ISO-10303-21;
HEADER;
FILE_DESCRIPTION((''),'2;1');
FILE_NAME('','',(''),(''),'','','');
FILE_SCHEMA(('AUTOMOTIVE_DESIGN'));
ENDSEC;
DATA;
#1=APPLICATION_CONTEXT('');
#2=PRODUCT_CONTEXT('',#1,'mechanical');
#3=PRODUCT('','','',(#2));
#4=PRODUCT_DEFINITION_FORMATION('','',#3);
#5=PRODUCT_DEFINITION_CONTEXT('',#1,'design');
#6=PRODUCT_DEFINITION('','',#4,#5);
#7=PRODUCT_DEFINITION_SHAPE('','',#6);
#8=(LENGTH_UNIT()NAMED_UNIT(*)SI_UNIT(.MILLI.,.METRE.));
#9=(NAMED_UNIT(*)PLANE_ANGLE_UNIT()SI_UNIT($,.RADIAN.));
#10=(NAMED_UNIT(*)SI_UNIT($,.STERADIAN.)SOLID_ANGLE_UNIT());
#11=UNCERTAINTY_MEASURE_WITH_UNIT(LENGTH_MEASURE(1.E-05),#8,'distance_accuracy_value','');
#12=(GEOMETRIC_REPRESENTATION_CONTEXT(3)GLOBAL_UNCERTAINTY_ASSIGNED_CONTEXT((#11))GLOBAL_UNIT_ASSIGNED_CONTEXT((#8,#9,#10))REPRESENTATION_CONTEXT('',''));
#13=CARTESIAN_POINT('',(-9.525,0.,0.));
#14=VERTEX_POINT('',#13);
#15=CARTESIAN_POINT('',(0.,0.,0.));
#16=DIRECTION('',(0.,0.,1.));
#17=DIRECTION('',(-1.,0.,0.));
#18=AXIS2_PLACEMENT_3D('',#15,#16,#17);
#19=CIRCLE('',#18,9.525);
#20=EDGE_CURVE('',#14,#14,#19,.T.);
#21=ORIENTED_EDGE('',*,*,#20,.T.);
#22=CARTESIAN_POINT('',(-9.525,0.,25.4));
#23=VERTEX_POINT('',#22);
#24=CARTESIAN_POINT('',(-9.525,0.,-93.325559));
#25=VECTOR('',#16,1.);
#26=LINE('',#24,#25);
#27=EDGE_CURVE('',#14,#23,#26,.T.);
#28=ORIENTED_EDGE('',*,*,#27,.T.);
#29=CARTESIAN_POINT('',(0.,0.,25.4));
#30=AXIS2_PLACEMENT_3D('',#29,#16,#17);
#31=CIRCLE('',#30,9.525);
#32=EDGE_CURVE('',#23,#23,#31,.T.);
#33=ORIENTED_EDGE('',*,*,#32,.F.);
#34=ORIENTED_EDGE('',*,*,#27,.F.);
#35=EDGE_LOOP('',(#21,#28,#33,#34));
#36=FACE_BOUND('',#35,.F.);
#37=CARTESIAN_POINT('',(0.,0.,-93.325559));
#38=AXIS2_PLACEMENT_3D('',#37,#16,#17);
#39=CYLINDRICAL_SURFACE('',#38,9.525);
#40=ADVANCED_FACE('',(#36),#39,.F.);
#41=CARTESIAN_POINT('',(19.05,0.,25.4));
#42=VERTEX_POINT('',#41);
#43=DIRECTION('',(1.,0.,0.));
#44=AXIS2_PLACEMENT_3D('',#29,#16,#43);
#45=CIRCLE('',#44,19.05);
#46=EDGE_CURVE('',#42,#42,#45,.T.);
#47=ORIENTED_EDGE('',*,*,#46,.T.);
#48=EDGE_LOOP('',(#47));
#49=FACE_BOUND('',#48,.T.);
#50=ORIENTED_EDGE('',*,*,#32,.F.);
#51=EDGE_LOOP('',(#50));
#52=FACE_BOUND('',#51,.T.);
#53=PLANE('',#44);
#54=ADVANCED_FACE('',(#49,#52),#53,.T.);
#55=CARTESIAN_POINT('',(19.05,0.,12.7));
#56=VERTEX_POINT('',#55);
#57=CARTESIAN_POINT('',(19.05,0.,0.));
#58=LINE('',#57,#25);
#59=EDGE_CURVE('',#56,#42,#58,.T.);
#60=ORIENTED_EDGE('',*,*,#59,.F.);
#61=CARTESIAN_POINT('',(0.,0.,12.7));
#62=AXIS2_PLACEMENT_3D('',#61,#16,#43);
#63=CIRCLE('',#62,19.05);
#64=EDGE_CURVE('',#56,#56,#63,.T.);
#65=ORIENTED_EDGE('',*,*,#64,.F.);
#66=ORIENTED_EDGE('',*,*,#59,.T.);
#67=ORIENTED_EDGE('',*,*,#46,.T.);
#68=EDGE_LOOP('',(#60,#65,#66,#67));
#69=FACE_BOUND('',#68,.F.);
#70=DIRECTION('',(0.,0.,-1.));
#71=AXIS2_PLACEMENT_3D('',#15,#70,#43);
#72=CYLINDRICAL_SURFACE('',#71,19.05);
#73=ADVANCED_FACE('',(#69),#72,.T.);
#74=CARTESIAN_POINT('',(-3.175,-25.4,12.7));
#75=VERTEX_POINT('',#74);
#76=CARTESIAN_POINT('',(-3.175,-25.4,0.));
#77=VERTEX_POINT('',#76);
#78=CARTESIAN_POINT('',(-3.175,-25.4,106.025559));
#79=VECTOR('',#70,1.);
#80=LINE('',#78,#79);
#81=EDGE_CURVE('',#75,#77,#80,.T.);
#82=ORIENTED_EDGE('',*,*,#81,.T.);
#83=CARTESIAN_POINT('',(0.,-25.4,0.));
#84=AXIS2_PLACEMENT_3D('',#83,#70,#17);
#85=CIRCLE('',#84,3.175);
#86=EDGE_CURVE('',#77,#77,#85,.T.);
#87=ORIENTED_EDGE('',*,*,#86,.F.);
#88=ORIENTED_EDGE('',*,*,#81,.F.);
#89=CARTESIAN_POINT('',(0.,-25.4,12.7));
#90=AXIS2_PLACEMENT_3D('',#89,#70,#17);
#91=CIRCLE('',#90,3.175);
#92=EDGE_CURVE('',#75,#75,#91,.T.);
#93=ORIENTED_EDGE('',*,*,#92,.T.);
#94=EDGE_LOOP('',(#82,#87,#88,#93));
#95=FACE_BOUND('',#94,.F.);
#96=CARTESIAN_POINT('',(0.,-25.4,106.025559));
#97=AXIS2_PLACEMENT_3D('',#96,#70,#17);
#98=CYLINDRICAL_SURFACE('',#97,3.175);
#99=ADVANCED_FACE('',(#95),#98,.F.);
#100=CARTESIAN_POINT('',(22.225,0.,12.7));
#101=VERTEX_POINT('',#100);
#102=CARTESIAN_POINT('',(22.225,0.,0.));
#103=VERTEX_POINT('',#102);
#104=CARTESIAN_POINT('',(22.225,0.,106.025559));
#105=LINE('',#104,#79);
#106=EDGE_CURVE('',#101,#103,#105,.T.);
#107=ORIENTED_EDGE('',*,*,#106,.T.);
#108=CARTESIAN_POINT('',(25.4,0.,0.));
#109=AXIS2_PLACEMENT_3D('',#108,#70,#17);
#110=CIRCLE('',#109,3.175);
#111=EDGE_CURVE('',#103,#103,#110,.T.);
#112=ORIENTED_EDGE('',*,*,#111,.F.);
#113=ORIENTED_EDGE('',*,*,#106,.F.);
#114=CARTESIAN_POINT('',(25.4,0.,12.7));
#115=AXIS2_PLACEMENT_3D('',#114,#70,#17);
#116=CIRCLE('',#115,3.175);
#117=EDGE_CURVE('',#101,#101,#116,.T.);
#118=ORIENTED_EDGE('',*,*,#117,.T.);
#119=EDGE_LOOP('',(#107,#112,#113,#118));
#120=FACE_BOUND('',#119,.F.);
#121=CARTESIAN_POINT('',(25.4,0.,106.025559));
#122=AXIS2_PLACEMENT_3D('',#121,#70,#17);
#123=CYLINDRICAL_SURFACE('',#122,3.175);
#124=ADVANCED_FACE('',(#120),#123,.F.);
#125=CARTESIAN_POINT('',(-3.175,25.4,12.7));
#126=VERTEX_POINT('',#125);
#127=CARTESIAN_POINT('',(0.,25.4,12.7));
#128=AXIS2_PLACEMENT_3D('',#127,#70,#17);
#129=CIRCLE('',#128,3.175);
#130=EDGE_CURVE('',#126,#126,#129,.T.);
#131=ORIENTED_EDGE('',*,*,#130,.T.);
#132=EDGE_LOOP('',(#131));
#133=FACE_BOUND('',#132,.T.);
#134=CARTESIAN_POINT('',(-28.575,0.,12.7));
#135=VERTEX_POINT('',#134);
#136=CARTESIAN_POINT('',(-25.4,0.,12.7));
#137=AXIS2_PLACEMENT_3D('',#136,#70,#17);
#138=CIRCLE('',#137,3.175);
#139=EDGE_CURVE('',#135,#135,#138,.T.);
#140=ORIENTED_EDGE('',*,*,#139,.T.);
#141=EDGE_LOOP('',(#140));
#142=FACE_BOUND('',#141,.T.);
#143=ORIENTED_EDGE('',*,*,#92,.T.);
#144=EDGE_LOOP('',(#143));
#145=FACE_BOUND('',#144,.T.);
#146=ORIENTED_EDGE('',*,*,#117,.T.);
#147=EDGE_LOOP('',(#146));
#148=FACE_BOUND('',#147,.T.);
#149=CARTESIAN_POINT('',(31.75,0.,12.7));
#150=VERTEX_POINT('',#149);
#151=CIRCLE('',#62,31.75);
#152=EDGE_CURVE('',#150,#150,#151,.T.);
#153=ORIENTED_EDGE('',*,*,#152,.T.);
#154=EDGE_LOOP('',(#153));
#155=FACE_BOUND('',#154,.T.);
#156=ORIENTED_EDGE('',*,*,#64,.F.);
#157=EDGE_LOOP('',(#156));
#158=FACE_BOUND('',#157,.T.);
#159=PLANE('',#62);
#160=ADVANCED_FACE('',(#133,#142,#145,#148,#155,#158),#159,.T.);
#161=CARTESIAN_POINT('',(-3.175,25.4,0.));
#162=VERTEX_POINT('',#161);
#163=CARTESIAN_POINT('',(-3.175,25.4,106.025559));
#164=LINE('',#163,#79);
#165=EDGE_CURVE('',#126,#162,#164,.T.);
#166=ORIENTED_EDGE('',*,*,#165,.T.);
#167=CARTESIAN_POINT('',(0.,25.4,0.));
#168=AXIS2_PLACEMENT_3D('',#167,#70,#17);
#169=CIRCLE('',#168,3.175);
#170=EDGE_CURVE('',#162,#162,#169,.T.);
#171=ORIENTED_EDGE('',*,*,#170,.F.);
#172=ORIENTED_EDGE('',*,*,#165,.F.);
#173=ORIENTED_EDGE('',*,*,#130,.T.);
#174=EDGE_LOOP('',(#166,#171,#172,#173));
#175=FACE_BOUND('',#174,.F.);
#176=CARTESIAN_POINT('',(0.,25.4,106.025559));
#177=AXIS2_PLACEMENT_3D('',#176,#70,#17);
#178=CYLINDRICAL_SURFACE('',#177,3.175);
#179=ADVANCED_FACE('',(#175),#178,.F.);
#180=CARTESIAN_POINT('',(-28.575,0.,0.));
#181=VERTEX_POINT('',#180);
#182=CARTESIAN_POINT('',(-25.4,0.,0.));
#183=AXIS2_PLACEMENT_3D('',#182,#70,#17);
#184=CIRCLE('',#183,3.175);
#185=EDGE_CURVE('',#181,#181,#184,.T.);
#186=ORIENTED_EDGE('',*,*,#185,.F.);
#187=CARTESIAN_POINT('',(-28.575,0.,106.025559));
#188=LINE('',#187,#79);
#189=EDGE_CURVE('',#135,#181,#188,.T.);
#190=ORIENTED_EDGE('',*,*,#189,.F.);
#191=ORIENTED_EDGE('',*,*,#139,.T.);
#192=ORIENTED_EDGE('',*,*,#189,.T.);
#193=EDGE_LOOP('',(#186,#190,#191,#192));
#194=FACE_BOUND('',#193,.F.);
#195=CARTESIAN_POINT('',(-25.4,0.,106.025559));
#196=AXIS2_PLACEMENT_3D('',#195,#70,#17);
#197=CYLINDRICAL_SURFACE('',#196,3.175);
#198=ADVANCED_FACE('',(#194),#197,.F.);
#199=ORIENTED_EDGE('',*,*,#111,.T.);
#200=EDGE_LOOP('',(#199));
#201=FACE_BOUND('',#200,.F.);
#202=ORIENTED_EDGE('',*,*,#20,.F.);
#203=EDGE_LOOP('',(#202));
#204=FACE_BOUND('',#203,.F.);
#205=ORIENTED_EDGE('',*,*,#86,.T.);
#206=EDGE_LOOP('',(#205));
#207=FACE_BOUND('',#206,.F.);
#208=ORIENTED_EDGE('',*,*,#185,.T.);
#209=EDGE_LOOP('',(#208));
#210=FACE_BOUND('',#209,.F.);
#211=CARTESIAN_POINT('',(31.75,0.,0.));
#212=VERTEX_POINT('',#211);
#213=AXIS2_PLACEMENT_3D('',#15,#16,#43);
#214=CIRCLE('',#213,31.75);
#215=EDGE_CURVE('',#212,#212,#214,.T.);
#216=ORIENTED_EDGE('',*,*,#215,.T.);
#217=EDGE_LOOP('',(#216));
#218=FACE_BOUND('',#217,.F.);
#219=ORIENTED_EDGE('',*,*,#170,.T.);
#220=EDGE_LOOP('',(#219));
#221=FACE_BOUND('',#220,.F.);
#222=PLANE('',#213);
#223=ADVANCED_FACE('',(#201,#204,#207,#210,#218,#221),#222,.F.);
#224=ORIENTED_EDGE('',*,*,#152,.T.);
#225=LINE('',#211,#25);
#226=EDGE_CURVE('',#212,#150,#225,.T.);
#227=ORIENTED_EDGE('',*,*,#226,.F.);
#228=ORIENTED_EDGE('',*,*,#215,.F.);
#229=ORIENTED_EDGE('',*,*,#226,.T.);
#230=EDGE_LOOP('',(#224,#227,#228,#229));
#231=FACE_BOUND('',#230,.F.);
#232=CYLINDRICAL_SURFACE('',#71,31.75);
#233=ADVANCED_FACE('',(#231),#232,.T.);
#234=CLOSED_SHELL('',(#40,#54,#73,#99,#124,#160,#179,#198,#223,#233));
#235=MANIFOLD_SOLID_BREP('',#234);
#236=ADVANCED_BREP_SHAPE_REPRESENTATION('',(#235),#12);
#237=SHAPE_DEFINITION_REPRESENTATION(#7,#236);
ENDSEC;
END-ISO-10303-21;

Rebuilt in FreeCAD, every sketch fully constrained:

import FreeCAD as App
import Part
import Sketcher
Q = App.Units.Quantity

doc = App.newDocument("Part")
body = doc.addObject("PartDesign::Body", "Body")

# Sketch on XY plane
sketch1 = body.newObject("Sketcher::SketchObject", "Sketch")
sketch1.AttachmentSupport = (doc.getObject("XY_Plane"), [""])
sketch1.MapMode = "FlatFace"
sketch1.addGeometry([
    Part.Circle(App.Vector(0, 0, 0), App.Vector(0, 0, 1), 31.75),
    Part.Circle(App.Vector(0, 0, 0), App.Vector(0, 0, 1), 19.05),
], False)
sketch1.addConstraint([
    Sketcher.Constraint("Coincident", 0, 3, -1, 1),
    Sketcher.Constraint("Coincident", 1, 3, -1, 1),
    Sketcher.Constraint("Diameter", 0, Q("2.5 in")),
    Sketcher.Constraint("Diameter", 1, Q("1.5 in")),
])
pad1 = body.newObject("PartDesign::Pad", "Pad")
pad1.Profile = sketch1
pad1.Length = Q("0.5 in")

# Sketch on XY plane
sketch2 = body.newObject("Sketcher::SketchObject", "Sketch001")
sketch2.AttachmentSupport = (doc.getObject("XY_Plane"), [""])
sketch2.MapMode = "FlatFace"
sketch2.addGeometry(Part.Circle(App.Vector(0, 0, 0), App.Vector(0, 0, 1), 19.05), False)
sketch2.addConstraint([
    Sketcher.Constraint("Coincident", 0, 3, -1, 1),
    Sketcher.Constraint("Diameter", 0, Q("1.5 in")),
])
pad2 = body.newObject("PartDesign::Pad", "Pad001")
pad2.Profile = sketch2
pad2.Length = Q("1 in")

# Sketch on XY plane
sketch3 = body.newObject("Sketcher::SketchObject", "Sketch002")
sketch3.AttachmentSupport = (doc.getObject("XY_Plane"), [""])
sketch3.MapMode = "FlatFace"
sketch3.addGeometry(Part.Circle(App.Vector(0, 0, 0), App.Vector(0, 0, 1), 9.525), False)
sketch3.addConstraint([
    Sketcher.Constraint("Coincident", 0, 3, -1, 1),
    Sketcher.Constraint("Diameter", 0, Q("0.75 in")),
])
doc.recompute()
hole = body.newObject("PartDesign::Hole", "Hole")
hole.Profile = sketch3
hole.ThreadType = "None"
hole.Diameter = Q("0.75 in")
hole.DepthType = "ThroughAll"
hole.Reversed = True

# Sketch on XY plane
sketch4 = body.newObject("Sketcher::SketchObject", "Sketch003")
sketch4.AttachmentSupport = (doc.getObject("XY_Plane"), [""])
sketch4.MapMode = "FlatFace"
sketch4.AttachmentOffset = App.Placement(App.Vector(0, 0, 0.5 * 25.4), App.Rotation())
sketch4.addGeometry([
    Part.Circle(App.Vector(0, 25.4, 0), App.Vector(0, 0, 1), 3.175),
    Part.Circle(App.Vector(-25.4, 0, 0), App.Vector(0, 0, 1), 3.175),
    Part.Circle(App.Vector(0, -25.4, 0), App.Vector(0, 0, 1), 3.175),
    Part.Circle(App.Vector(25.4, 0, 0), App.Vector(0, 0, 1), 3.175),
], False)
sketch4.addConstraint([
    Sketcher.Constraint("Equal", 0, 1),
    Sketcher.Constraint("Equal", 1, 2),
    Sketcher.Constraint("Equal", 2, 3),
    Sketcher.Constraint("Symmetric", 0, 3, 2, 3, -1, 1),
    Sketcher.Constraint("Symmetric", 1, 3, 3, 3, -1, 1),
    Sketcher.Constraint("PointOnObject", 0, 3, -2),
    Sketcher.Constraint("PointOnObject", 1, 3, -1),
    Sketcher.Constraint("Diameter", 0, Q("0.25 in")),
    Sketcher.Constraint("DistanceY", -1, 1, 0, 3, Q("1 in")),
    Sketcher.Constraint("DistanceX", 1, 3, -1, 1, Q("1 in")),
])
doc.recompute()
hole2 = body.newObject("PartDesign::Hole", "Hole001")
hole2.Profile = sketch4
hole2.ThreadType = "None"
hole2.Diameter = Q("0.25 in")
hole2.DepthType = "ThroughAll"

doc.recompute()
